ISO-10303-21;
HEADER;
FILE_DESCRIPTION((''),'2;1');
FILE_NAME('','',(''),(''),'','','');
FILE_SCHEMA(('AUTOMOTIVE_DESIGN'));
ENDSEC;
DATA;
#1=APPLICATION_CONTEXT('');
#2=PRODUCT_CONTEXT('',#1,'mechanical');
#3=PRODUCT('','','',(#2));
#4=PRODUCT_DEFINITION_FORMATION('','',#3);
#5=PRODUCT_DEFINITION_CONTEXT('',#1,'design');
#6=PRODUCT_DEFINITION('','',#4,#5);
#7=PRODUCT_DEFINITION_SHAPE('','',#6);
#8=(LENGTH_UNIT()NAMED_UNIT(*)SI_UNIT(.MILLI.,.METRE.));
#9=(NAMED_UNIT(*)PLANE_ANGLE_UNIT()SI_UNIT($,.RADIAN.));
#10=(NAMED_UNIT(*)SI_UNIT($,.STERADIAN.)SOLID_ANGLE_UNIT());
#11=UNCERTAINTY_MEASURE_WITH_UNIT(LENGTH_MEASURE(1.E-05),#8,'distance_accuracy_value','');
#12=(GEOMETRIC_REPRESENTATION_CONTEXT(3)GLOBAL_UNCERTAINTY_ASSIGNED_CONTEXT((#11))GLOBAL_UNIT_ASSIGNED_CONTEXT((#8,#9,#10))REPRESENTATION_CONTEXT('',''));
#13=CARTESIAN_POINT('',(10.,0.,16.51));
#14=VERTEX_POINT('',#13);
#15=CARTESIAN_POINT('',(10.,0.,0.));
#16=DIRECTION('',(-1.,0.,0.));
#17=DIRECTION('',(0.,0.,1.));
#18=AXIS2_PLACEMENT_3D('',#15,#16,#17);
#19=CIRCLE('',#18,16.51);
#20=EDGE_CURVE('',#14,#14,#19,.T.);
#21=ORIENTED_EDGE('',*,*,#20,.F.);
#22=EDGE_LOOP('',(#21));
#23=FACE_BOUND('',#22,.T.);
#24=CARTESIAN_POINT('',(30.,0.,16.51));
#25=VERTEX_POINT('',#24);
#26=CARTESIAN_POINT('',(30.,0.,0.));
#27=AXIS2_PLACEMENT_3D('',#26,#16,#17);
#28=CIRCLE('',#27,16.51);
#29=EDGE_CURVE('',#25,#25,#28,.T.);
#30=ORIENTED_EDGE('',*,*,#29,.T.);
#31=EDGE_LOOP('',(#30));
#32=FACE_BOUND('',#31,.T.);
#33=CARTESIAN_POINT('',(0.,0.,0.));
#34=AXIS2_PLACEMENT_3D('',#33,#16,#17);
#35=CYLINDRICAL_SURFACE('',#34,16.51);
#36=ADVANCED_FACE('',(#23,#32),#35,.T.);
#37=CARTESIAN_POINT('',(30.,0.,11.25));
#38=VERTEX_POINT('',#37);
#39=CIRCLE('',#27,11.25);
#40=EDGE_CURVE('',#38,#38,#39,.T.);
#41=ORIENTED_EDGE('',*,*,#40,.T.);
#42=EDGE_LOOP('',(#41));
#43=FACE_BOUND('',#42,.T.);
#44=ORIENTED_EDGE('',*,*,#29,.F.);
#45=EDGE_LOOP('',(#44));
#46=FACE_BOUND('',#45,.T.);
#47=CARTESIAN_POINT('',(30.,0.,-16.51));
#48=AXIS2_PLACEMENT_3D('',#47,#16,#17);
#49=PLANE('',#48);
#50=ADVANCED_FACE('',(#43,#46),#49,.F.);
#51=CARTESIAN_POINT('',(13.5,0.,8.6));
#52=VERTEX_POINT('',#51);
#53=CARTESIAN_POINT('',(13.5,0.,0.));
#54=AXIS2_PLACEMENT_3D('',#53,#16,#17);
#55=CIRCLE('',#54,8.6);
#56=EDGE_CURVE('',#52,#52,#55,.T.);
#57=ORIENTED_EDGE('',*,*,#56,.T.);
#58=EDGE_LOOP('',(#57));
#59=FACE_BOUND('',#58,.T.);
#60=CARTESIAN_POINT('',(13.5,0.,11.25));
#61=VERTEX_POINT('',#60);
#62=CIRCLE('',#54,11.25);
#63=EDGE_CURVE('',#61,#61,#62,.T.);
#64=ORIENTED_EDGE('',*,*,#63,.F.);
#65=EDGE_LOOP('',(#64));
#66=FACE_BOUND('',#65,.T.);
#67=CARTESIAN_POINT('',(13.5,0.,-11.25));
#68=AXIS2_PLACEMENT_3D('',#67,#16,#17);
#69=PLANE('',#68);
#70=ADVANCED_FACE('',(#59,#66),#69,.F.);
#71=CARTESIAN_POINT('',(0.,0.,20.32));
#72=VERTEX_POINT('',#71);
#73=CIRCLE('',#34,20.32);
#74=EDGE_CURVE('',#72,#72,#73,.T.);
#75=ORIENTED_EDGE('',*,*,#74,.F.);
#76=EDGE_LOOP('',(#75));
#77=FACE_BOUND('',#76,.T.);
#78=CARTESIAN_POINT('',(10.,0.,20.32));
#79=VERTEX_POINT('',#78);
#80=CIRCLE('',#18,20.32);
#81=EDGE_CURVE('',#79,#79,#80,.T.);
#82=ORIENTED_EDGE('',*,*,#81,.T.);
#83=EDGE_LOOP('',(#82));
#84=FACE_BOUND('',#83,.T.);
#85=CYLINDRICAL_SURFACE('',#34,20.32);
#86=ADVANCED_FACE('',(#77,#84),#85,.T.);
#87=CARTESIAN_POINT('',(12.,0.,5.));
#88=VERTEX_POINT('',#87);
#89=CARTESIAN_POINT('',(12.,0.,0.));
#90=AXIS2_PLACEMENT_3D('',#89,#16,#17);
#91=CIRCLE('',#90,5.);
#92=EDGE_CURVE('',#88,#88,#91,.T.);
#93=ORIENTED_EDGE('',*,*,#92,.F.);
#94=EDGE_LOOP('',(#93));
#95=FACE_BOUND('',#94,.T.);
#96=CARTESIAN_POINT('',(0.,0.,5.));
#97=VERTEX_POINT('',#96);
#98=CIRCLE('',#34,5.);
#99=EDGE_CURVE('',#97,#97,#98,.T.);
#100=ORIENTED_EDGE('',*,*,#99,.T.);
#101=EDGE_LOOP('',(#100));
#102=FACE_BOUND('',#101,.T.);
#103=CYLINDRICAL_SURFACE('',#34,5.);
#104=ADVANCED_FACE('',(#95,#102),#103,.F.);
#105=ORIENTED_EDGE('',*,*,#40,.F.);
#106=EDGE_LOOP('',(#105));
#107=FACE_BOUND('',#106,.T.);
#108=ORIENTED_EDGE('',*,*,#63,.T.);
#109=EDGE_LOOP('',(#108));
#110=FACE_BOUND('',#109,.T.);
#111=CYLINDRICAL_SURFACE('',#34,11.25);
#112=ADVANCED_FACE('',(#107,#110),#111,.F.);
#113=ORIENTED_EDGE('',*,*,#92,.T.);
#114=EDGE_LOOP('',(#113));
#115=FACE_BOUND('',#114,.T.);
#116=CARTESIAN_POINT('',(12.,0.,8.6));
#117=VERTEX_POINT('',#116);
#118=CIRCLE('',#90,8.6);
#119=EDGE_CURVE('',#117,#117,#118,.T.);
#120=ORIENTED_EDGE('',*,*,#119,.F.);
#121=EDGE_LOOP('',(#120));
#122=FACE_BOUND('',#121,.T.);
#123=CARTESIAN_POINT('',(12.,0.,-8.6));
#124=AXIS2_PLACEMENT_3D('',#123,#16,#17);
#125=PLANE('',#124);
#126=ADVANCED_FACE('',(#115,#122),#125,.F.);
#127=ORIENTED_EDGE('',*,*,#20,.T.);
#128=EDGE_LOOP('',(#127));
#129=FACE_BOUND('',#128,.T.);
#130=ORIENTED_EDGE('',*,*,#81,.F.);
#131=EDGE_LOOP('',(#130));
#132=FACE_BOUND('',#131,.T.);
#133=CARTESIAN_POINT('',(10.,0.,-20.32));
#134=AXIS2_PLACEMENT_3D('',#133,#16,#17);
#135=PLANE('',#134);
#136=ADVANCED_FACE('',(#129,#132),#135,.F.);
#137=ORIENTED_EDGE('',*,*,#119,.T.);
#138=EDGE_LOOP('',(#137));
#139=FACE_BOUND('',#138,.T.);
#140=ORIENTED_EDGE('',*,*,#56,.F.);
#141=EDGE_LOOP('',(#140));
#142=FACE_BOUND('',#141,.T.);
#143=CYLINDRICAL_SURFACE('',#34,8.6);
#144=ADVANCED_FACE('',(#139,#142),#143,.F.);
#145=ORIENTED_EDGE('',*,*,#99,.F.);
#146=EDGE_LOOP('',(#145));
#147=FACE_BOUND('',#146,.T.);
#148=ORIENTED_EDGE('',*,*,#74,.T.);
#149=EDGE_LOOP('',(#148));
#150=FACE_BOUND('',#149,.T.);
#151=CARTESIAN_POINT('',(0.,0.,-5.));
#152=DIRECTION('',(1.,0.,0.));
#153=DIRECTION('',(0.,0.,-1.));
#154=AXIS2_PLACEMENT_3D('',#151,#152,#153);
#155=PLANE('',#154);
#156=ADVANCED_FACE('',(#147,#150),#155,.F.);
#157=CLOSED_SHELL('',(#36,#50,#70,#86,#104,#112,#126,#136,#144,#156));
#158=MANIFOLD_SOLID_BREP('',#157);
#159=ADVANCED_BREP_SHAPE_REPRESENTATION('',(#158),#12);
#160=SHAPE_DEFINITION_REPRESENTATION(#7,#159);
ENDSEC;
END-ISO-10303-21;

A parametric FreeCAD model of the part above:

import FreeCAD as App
import Part
import Sketcher
from FreeCAD import Vector


def add_polygon(sketch, points):
    """Adds a closed chain of lines whose ends are joined by coincident constraints."""
    first, n = sketch.GeometryCount, len(points)
    for a, b in zip(points, points[1:] + points[:1]):
        sketch.addGeometry(Part.LineSegment(App.Vector(*a, 0), App.Vector(*b, 0)), False)
    for i in range(n):
        sketch.addConstraint(Sketcher.Constraint("Coincident", first + i, 2, first + (i + 1) % n, 1))

doc = App.newDocument("Part")
body = doc.addObject("PartDesign::Body", "Body")

sketch1 = body.newObject("Sketcher::SketchObject", "Sketch")
sketch1.AttachmentSupport = (doc.getObject("XZ_Plane"), [""])
sketch1.MapMode = "FlatFace"
add_polygon(sketch1, [(0, -20.3), (0, -5), (12, -5), (12, -8.6), (13.5, -8.6), (13.5, -11.2), (30, -11.2), (30, -16.5), (10, -16.5), (10, -20.3)])
sketch1.addConstraint(Sketcher.Constraint("Vertical", 0))
sketch1.addConstraint(Sketcher.Constraint("Horizontal", 1))
sketch1.addConstraint(Sketcher.Constraint("Vertical", 2))
sketch1.addConstraint(Sketcher.Constraint("Horizontal", 3))
sketch1.addConstraint(Sketcher.Constraint("Vertical", 4))
sketch1.addConstraint(Sketcher.Constraint("Horizontal", 5))
sketch1.addConstraint(Sketcher.Constraint("Vertical", 6))
sketch1.addConstraint(Sketcher.Constraint("Horizontal", 7))
sketch1.addConstraint(Sketcher.Constraint("Vertical", 8))
sketch1.addConstraint(Sketcher.Constraint("Horizontal", 9))
sketch1.addConstraint(Sketcher.Constraint("PointOnObject", 0, 2, -2))
sketch1.addConstraint(Sketcher.Constraint("DistanceX", 1, 1, 1, 2, 12.0))
sketch1.addConstraint(Sketcher.Constraint("DistanceX", 7, 2, 7, 1, 20.0))
sketch1.addConstraint(Sketcher.Constraint("DistanceX", 9, 2, 9, 1, 10.0))
sketch1.addConstraint(Sketcher.Constraint("DistanceX", 3, 1, 3, 2, 1.5))
sketch1.addConstraint(Sketcher.Constraint("DistanceY", 2, 2, 2, 1, 3.6))
sketch1.addConstraint(Sketcher.Constraint("DistanceY", 0, 2, -1, 1, 5.0))
sketch1.addConstraint(Sketcher.Constraint("DistanceY", 0, 1, 0, 2, 15.32))
sketch1.addConstraint(Sketcher.Constraint("DistanceY", 4, 2, 4, 1, 2.65))
sketch1.addConstraint(Sketcher.Constraint("DistanceY", 6, 2, 6, 1, 5.26))
revolution = body.newObject("PartDesign::Revolution", "Revolution")
revolution.Profile = sketch1
revolution.ReferenceAxis = (sketch1, ["H_Axis"])
revolution.Angle = 360

doc.recompute()
